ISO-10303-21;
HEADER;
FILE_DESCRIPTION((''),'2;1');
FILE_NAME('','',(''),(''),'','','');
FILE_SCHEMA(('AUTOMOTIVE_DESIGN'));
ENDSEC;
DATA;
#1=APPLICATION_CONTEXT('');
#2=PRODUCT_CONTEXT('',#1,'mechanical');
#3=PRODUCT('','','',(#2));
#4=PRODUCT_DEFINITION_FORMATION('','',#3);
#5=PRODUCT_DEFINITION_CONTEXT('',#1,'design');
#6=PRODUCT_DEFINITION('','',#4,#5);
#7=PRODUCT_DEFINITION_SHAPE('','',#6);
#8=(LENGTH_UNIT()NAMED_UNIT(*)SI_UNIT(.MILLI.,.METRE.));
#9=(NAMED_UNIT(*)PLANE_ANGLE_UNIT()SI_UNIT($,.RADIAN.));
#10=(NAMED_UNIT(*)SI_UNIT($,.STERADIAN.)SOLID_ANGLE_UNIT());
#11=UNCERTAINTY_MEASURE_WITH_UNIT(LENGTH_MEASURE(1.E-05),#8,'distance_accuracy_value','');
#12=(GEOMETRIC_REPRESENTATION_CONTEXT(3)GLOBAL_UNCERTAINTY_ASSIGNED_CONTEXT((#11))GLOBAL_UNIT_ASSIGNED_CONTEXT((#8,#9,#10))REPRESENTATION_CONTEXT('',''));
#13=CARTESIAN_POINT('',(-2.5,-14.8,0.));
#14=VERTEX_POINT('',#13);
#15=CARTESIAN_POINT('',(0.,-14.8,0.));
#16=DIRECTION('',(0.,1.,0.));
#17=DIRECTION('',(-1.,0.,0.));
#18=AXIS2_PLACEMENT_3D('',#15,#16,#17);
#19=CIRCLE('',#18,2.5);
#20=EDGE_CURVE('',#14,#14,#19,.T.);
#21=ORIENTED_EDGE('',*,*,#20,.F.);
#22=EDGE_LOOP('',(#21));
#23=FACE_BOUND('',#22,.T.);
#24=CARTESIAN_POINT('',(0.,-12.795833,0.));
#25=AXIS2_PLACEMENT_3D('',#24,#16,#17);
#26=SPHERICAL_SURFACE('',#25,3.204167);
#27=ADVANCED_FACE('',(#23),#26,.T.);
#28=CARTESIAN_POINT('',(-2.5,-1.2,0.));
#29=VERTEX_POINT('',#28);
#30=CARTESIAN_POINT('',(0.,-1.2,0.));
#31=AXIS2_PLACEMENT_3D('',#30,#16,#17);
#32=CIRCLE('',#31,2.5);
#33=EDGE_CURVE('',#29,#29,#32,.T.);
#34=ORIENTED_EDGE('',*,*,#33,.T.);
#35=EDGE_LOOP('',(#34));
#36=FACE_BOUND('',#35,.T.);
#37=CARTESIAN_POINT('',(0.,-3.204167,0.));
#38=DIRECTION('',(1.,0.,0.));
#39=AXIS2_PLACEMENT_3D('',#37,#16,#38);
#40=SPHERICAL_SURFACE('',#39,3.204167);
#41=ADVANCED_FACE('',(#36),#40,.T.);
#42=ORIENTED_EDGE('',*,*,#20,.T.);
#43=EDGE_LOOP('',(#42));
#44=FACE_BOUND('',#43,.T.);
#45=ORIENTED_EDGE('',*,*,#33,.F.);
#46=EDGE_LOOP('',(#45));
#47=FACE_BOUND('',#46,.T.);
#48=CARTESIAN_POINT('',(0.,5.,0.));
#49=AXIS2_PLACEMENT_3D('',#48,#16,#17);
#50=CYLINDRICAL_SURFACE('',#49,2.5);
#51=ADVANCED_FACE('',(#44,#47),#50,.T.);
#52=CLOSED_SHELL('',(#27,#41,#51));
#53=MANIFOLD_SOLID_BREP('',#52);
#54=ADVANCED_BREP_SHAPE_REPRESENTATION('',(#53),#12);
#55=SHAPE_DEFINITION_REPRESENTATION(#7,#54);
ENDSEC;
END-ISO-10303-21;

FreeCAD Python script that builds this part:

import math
import FreeCAD as App
import Part
import Sketcher
Q = App.Units.Quantity

doc = App.newDocument("Part")
body = doc.addObject("PartDesign::Body", "Body")

# Sketch on XY plane
sketch1 = body.newObject("Sketcher::SketchObject", "Sketch")
sketch1.AttachmentSupport = (doc.getObject("XY_Plane"), [""])
sketch1.MapMode = "FlatFace"
sketch1.addGeometry([
    Part.LineSegment(App.Vector(2.5, -14.8, 0), App.Vector(2.5, -1.2, 0)),
    Part.ArcOfCircle(Part.Circle(App.Vector(0, -3.204167, 0), App.Vector(0, 0, 1), 3.204167), math.radians(38.717988), math.radians(90)),
    Part.LineSegment(App.Vector(0, 0, 0), App.Vector(0, -16, 0)),
    Part.ArcOfCircle(Part.Circle(App.Vector(0, -12.795833, 0), App.Vector(0, 0, 1), 3.204167), math.radians(-90), math.radians(-38.717988)),
], False)
sketch1.addConstraint([
    Sketcher.Constraint("Coincident", 0, 2, 1, 1),
    Sketcher.Constraint("Coincident", 1, 2, 2, 1),
    Sketcher.Constraint("Coincident", 2, 2, 3, 1),
    Sketcher.Constraint("Coincident", 3, 2, 0, 1),
    Sketcher.Constraint("Vertical", 0),
    Sketcher.Constraint("Vertical", 2),
    Sketcher.Constraint("Coincident", 1, 2, -1, 1),
    Sketcher.Constraint("Equal", 1, 3),
    Sketcher.Constraint("PointOnObject", 1, 3, -2),
    Sketcher.Constraint("PointOnObject", 3, 3, -2),
    Sketcher.Constraint("DistanceY", 2, 2, 2, 1, Q("16 mm")),
    Sketcher.Constraint("DistanceY", 0, 1, 0, 2, Q("13.6 mm")),
    Sketcher.Constraint("DistanceX", -1, 1, 0, 2, Q("2.5 mm")),
])
revolution = body.newObject("PartDesign::Revolution", "Revolution")
revolution.Profile = sketch1
revolution.ReferenceAxis = (sketch1, ["V_Axis"])
revolution.Angle = 360

doc.recompute()
